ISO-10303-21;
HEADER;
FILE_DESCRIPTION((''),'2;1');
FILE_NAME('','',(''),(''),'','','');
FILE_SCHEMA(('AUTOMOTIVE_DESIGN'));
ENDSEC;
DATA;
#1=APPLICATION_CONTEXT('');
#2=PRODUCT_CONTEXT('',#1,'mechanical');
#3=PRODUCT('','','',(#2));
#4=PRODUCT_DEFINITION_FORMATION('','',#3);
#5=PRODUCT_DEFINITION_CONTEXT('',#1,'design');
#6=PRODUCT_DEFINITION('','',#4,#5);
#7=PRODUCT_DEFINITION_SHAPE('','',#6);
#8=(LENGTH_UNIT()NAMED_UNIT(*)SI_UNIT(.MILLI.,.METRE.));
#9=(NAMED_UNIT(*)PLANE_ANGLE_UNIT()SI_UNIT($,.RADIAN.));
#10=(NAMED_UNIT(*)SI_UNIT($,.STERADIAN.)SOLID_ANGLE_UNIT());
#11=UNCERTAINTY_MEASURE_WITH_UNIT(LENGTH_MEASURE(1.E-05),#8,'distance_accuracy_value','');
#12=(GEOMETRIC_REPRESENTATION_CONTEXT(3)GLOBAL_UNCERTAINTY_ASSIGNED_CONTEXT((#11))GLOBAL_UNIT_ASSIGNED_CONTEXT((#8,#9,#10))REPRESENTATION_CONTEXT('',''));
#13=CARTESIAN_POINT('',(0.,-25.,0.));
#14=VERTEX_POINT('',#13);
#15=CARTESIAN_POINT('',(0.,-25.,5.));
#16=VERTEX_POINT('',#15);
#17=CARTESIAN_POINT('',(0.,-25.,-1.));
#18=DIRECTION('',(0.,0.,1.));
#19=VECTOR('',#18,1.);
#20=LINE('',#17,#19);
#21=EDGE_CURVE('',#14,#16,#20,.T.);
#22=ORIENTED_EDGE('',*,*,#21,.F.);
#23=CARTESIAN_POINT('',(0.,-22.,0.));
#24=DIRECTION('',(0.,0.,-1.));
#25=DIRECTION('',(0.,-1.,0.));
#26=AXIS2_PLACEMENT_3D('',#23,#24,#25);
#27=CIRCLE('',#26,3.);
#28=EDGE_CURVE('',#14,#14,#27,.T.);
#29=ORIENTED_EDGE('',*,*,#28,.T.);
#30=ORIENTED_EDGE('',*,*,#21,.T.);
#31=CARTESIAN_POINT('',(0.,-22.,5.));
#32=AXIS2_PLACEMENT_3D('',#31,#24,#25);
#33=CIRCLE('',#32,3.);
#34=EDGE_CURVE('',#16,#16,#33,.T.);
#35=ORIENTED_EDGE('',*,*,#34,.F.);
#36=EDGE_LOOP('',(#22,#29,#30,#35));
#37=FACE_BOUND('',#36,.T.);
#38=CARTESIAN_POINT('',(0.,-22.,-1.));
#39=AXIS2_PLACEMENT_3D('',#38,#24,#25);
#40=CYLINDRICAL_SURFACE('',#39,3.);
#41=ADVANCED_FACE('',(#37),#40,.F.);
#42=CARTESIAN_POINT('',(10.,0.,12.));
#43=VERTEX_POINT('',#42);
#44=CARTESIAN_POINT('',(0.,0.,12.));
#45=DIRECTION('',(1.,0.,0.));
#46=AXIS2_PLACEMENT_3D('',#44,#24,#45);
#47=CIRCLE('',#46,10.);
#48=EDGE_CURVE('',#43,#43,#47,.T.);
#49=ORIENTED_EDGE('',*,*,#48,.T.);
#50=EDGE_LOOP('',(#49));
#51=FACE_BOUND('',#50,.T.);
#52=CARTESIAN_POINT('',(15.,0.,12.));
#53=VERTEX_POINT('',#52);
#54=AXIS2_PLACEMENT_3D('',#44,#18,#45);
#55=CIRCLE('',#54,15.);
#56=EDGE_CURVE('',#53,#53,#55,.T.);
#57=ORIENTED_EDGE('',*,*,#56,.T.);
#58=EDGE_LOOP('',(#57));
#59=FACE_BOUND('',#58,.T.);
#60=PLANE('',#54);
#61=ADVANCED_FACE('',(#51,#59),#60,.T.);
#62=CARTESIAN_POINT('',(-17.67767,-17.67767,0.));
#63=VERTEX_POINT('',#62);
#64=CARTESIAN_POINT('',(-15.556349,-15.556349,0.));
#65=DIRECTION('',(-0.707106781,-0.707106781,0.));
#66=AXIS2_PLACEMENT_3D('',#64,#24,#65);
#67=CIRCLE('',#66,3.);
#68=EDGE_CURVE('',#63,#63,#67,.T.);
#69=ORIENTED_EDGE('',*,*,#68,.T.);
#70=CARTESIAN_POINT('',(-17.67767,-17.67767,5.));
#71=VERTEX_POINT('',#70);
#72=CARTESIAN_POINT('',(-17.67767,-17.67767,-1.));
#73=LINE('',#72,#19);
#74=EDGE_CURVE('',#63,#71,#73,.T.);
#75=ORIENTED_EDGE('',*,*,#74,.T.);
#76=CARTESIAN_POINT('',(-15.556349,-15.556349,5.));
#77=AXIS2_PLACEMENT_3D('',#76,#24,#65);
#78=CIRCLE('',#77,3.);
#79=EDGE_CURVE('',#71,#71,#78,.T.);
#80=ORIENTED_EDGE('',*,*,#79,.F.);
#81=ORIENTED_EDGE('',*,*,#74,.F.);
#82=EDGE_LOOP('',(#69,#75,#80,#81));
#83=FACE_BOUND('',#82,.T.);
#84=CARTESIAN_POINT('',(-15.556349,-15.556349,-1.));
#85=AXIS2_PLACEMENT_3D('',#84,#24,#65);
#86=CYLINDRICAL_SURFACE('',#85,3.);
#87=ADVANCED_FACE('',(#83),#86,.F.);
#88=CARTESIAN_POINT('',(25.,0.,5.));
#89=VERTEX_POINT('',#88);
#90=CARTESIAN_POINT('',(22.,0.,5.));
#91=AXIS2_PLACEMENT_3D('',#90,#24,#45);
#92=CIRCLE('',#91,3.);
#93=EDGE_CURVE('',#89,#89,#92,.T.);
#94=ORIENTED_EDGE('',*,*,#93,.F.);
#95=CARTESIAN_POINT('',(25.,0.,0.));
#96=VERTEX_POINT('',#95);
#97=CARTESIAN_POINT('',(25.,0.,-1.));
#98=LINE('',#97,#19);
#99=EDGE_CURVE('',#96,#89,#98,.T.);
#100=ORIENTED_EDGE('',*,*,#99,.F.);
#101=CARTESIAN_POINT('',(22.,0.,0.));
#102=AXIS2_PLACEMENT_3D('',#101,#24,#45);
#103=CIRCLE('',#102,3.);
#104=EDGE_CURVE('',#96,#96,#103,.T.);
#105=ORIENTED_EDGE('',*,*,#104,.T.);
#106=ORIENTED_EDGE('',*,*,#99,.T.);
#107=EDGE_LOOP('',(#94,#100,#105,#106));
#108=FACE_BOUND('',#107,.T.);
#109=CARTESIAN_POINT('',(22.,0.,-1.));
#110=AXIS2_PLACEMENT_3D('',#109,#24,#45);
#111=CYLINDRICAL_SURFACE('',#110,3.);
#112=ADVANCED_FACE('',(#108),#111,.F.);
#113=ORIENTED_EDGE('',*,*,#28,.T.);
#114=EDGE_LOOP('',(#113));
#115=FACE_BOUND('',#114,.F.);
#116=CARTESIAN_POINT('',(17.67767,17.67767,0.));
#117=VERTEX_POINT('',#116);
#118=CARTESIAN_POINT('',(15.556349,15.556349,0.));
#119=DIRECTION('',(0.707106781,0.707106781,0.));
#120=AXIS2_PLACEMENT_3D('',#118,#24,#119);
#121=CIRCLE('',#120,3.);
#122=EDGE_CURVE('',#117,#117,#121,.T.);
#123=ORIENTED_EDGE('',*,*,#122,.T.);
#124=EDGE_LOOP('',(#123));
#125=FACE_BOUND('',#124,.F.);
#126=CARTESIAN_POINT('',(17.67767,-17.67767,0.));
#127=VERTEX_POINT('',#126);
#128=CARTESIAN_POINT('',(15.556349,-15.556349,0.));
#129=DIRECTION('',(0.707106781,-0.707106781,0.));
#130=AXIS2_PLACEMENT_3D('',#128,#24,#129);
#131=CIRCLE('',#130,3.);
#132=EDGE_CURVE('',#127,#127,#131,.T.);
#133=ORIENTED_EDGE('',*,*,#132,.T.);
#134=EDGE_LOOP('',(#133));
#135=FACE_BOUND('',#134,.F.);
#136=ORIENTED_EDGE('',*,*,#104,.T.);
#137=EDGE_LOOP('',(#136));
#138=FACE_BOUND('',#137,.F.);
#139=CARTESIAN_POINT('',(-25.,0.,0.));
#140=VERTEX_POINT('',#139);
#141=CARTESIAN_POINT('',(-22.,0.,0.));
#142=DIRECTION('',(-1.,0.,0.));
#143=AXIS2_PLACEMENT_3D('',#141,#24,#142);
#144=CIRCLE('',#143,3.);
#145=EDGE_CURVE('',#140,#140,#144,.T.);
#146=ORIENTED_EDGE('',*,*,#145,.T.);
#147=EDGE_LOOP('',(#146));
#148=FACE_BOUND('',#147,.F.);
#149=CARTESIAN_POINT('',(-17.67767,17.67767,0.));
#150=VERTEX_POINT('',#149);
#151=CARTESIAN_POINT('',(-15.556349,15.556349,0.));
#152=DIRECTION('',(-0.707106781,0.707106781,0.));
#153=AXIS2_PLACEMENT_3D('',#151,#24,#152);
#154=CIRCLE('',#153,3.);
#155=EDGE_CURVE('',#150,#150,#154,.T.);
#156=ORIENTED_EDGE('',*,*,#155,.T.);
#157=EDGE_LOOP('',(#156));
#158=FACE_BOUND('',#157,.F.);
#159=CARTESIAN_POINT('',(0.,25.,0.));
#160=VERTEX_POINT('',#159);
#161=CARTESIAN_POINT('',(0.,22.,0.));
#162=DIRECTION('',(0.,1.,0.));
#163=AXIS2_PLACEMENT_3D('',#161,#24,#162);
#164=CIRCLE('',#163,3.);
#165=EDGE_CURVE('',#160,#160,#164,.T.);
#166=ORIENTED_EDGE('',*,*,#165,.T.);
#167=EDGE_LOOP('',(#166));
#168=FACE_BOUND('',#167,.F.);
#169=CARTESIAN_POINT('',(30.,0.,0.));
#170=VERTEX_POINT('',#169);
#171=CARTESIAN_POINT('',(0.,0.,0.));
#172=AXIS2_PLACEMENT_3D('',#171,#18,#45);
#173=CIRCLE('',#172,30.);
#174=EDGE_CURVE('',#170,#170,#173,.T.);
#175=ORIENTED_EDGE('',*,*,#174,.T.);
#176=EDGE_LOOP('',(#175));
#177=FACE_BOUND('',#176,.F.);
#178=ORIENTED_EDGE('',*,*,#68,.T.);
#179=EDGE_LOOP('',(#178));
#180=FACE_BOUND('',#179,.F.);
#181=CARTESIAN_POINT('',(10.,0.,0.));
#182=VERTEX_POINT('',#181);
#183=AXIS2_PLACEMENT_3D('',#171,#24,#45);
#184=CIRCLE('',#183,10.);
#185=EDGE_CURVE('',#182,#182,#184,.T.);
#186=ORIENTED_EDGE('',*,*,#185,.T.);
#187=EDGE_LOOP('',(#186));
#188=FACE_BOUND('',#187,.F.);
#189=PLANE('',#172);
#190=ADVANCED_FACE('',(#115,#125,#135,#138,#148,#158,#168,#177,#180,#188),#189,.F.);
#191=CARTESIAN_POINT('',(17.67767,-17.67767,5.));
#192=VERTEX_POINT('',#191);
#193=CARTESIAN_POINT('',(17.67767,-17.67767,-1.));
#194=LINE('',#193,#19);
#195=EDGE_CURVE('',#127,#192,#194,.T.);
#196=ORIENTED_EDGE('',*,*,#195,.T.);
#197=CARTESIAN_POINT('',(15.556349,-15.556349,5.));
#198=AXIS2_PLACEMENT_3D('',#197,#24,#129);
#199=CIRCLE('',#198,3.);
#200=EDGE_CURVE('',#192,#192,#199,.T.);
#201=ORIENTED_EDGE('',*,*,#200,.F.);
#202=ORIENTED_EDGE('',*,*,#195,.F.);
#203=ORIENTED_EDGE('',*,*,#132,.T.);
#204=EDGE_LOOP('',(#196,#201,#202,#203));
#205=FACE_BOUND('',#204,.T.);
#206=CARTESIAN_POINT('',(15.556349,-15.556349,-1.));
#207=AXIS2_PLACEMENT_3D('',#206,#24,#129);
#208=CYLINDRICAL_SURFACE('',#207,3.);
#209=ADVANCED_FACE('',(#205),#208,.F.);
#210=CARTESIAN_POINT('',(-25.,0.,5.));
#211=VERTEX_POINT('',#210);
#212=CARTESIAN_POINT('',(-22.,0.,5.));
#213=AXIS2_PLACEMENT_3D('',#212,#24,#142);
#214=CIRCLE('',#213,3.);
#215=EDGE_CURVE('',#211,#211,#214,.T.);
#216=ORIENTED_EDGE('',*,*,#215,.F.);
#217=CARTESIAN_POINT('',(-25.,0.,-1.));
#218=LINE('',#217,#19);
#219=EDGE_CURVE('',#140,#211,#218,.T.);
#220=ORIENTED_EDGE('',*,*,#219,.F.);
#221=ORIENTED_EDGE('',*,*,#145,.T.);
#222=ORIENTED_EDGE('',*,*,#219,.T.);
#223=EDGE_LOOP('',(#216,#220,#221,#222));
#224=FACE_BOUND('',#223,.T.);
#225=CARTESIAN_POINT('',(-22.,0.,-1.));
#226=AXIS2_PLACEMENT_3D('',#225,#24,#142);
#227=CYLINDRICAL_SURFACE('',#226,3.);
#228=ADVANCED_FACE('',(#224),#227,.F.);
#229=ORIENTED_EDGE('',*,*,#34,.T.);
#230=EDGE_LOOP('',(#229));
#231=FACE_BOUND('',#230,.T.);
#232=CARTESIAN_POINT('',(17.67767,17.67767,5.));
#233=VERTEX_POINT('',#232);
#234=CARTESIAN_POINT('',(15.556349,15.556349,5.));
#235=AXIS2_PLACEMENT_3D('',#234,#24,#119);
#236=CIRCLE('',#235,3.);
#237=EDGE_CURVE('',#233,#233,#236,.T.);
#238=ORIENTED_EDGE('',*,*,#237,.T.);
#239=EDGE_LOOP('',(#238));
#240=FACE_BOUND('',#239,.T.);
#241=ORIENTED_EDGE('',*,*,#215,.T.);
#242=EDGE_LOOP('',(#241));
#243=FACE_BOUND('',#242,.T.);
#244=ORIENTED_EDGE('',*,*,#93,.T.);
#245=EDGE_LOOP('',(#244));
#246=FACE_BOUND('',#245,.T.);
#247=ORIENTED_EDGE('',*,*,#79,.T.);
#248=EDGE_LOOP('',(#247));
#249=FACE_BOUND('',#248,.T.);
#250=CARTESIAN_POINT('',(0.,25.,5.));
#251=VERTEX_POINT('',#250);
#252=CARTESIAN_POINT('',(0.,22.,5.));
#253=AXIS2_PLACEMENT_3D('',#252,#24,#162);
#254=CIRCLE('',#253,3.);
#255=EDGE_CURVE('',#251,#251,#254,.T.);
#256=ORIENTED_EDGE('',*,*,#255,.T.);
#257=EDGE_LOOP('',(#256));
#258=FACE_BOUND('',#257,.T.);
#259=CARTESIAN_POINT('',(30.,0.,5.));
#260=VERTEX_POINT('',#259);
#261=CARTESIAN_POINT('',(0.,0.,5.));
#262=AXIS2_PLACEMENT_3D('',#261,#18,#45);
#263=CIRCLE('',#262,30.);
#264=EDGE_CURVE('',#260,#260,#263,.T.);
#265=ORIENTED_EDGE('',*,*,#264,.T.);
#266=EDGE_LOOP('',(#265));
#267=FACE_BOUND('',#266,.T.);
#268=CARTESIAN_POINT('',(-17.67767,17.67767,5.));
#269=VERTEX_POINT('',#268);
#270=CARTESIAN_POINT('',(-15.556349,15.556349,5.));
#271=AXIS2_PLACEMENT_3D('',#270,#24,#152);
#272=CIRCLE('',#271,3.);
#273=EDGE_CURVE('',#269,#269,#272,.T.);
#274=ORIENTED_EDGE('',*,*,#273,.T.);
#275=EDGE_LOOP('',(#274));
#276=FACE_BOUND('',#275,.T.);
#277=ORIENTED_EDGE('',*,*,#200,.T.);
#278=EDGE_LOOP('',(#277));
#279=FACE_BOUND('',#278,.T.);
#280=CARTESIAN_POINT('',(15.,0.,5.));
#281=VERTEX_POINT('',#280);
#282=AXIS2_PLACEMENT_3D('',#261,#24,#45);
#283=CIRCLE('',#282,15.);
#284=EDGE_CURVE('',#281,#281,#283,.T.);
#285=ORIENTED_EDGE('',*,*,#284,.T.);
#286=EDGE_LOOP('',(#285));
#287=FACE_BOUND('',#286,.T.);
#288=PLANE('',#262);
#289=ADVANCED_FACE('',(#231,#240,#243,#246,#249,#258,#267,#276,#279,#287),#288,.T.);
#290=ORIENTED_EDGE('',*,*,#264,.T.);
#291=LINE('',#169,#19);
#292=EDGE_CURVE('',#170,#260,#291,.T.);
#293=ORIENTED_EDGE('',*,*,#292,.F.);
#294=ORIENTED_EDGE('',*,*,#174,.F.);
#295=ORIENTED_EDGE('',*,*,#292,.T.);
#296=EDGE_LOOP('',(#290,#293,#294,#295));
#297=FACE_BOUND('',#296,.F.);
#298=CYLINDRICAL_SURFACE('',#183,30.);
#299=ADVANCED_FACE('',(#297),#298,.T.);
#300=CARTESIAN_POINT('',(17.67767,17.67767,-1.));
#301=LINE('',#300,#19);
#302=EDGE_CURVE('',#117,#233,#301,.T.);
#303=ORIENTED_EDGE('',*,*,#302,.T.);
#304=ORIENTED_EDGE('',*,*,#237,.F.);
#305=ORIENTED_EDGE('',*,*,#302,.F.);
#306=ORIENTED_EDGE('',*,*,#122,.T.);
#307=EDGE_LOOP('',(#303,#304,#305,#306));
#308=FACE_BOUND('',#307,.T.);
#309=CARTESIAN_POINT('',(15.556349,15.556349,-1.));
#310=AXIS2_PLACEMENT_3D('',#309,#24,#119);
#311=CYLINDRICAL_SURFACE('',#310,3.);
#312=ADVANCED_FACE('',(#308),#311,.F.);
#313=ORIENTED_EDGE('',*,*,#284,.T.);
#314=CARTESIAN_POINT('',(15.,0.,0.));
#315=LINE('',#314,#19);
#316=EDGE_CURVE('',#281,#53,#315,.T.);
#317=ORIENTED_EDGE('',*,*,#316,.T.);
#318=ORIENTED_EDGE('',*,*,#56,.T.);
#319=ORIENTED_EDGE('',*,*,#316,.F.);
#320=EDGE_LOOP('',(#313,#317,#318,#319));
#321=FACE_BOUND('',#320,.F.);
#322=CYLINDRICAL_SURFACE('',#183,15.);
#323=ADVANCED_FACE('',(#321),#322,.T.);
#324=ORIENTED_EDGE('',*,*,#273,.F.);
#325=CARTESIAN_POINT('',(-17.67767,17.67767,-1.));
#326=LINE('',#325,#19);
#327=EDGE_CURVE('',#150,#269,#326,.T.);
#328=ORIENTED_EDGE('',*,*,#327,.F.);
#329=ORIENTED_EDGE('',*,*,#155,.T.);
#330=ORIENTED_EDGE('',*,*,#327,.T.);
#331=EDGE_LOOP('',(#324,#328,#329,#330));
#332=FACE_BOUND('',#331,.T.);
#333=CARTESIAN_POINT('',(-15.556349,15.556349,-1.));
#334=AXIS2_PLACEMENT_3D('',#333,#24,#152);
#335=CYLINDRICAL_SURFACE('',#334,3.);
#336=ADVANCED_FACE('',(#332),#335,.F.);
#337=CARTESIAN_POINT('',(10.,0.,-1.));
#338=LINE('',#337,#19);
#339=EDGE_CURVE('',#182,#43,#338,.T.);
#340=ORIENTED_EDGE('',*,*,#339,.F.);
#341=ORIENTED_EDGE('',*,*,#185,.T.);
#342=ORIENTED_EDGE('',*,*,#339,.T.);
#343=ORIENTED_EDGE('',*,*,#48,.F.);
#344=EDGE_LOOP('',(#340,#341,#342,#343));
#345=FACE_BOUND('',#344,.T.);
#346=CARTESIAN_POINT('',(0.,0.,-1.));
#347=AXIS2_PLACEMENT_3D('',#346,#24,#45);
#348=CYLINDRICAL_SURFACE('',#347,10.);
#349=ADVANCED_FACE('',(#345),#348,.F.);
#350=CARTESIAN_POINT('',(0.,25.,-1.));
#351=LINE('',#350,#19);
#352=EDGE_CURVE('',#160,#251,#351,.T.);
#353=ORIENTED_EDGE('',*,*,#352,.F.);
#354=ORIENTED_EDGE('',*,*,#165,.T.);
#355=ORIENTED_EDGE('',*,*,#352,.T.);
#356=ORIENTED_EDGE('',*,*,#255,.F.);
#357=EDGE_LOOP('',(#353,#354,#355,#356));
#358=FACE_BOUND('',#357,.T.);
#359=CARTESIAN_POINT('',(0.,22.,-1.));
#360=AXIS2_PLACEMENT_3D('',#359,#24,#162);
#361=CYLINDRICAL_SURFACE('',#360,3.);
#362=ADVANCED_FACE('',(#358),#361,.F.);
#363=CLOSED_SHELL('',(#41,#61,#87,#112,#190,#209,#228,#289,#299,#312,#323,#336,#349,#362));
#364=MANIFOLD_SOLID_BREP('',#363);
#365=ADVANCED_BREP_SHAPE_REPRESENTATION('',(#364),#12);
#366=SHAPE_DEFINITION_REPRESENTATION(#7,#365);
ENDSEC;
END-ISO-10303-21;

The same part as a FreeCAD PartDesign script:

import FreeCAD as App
import Part
import Sketcher
Q = App.Units.Quantity

doc = App.newDocument("Part")
body = doc.addObject("PartDesign::Body", "Body")

sketch1 = doc.addObject("Sketcher::SketchObject", "Sketch")
body.addObject(sketch1)
sketch1.AttachmentSupport = (doc.XY_Plane, [""])
sketch1.MapMode = "FlatFace"
sketch1.AttachmentOffset = App.Placement(App.Vector(0, 0, -1), App.Rotation())
sketch1.addGeometry(Part.Circle(App.Vector(22, 0, 0), App.Vector(0, 0, 1), 3), False)
sketch1.addConstraint([
    Sketcher.Constraint("PointOnObject", 0, 3, -1),
    Sketcher.Constraint("Diameter", 0, Q("6 mm")),
    Sketcher.Constraint("DistanceX", -1, 1, 0, 3, Q("22 mm")),
])
pad1 = doc.addObject("PartDesign::Pad", "Pad")
body.addObject(pad1)
pad1.Profile = sketch1
pad1.Length = 10
body2 = doc.addObject("PartDesign::Body", "Body001")
body2.AllowCompound = True
doc.recompute()

body2.BaseFeature = body
doc.recompute()

body3 = doc.addObject("PartDesign::Body", "Body002")
body3.BaseFeature = body
body3.Placement = App.Placement(App.Vector(0, 0, 0), App.Rotation(App.Vector(0, 0, 1), 45))
boolean = doc.addObject("PartDesign::Boolean", "Boolean")
body2.addObject(boolean)
boolean.Type = "Fuse"
boolean.addObjects([body3])
doc.recompute()

body4 = doc.addObject("PartDesign::Body", "Body003")
body4.BaseFeature = body
body4.Placement = App.Placement(App.Vector(0, 0, 0), App.Rotation(App.Vector(0, 0, 1), 90))
boolean2 = doc.addObject("PartDesign::Boolean", "Boolean001")
body2.addObject(boolean2)
boolean2.Type = "Fuse"
boolean2.addObjects([body4])
doc.recompute()

body5 = doc.addObject("PartDesign::Body", "Body004")
body5.BaseFeature = body
body5.Placement = App.Placement(App.Vector(0, 0, 0), App.Rotation(App.Vector(0, 0, 1), 135))
boolean3 = doc.addObject("PartDesign::Boolean", "Boolean002")
body2.addObject(boolean3)
boolean3.Type = "Fuse"
boolean3.addObjects([body5])
doc.recompute()

body6 = doc.addObject("PartDesign::Body", "Body005")
body6.BaseFeature = body
body6.Placement = App.Placement(App.Vector(0, 0, 0), App.Rotation(App.Vector(0, 0, 1), 180))
boolean4 = doc.addObject("PartDesign::Boolean", "Boolean003")
body2.addObject(boolean4)
boolean4.Type = "Fuse"
boolean4.addObjects([body6])
doc.recompute()

body7 = doc.addObject("PartDesign::Body", "Body006")
body7.BaseFeature = body
body7.Placement = App.Placement(App.Vector(0, 0, 0), App.Rotation(App.Vector(0, 0, 1), 225))
boolean5 = doc.addObject("PartDesign::Boolean", "Boolean004")
body2.addObject(boolean5)
boolean5.Type = "Fuse"
boolean5.addObjects([body7])
doc.recompute()

body8 = doc.addObject("PartDesign::Body", "Body007")
body8.BaseFeature = body
body8.Placement = App.Placement(App.Vector(0, 0, 0), App.Rotation(App.Vector(0, 0, 1), 270))
boolean6 = doc.addObject("PartDesign::Boolean", "Boolean005")
body2.addObject(boolean6)
boolean6.Type = "Fuse"
boolean6.addObjects([body8])
doc.recompute()

body.Placement = App.Placement(App.Vector(0, 0, 0), App.Rotation(App.Vector(0, 0, 1), 315))
boolean7 = doc.addObject("PartDesign::Boolean", "Boolean006")
body2.addObject(boolean7)
boolean7.Type = "Fuse"
boolean7.addObjects([body])
body9 = doc.addObject("PartDesign::Body", "Body008")

sketch2 = doc.addObject("Sketcher::SketchObject", "Sketch001")
body9.addObject(sketch2)
sketch2.AttachmentSupport = (doc.getObject("XY_Plane008"), [""])
sketch2.MapMode = "FlatFace"
sketch2.AttachmentOffset = App.Placement(App.Vector(0, 0, -1), App.Rotation())
sketch2.addGeometry(Part.Circle(App.Vector(0, 0, 0), App.Vector(0, 0, 1), 10), False)
sketch2.addConstraint([
    Sketcher.Constraint("Coincident", 0, 3, -1, 1),
    Sketcher.Constraint("Diameter", 0, Q("20 mm")),
])
pad2 = doc.addObject("PartDesign::Pad", "Pad001")
body9.addObject(pad2)
pad2.Profile = sketch2
pad2.Length = 30
body10 = doc.addObject("PartDesign::Body", "Body009")

sketch3 = doc.addObject("Sketcher::SketchObject", "Sketch002")
body10.addObject(sketch3)
sketch3.AttachmentSupport = (doc.getObject("XY_Plane009"), [""])
sketch3.MapMode = "FlatFace"
sketch3.addGeometry(Part.Circle(App.Vector(0, 0, 0), App.Vector(0, 0, 1), 15), False)
sketch3.addConstraint([
    Sketcher.Constraint("Coincident", 0, 3, -1, 1),
    Sketcher.Constraint("Diameter", 0, Q("30 mm")),
])
pad3 = doc.addObject("PartDesign::Pad", "Pad002")
body10.addObject(pad3)
pad3.Profile = sketch3
pad3.Length = 12
body11 = doc.addObject("PartDesign::Body", "Body010")

sketch4 = doc.addObject("Sketcher::SketchObject", "Sketch003")
body11.addObject(sketch4)
sketch4.AttachmentSupport = (doc.getObject("XY_Plane010"), [""])
sketch4.MapMode = "FlatFace"
sketch4.addGeometry(Part.Circle(App.Vector(0, 0, 0), App.Vector(0, 0, 1), 30), False)
sketch4.addConstraint([
    Sketcher.Constraint("Coincident", 0, 3, -1, 1),
    Sketcher.Constraint("Diameter", 0, Q("60 mm")),
])
pad4 = doc.addObject("PartDesign::Pad", "Pad003")
body11.addObject(pad4)
pad4.Profile = sketch4
pad4.Length = 5
doc.recompute()

boolean8 = doc.addObject("PartDesign::Boolean", "Boolean007")
body11.addObject(boolean8)
boolean8.Type = "Fuse"
boolean8.addObjects([body10])
doc.recompute()

boolean9 = doc.addObject("PartDesign::Boolean", "Boolean008")
body11.addObject(boolean9)
boolean9.Type = "Cut"
boolean9.addObjects([body9])
doc.recompute()

boolean10 = doc.addObject("PartDesign::Boolean", "Boolean009")
body11.addObject(boolean10)
boolean10.Type = "Cut"
boolean10.addObjects([body2])

doc.recompute()
